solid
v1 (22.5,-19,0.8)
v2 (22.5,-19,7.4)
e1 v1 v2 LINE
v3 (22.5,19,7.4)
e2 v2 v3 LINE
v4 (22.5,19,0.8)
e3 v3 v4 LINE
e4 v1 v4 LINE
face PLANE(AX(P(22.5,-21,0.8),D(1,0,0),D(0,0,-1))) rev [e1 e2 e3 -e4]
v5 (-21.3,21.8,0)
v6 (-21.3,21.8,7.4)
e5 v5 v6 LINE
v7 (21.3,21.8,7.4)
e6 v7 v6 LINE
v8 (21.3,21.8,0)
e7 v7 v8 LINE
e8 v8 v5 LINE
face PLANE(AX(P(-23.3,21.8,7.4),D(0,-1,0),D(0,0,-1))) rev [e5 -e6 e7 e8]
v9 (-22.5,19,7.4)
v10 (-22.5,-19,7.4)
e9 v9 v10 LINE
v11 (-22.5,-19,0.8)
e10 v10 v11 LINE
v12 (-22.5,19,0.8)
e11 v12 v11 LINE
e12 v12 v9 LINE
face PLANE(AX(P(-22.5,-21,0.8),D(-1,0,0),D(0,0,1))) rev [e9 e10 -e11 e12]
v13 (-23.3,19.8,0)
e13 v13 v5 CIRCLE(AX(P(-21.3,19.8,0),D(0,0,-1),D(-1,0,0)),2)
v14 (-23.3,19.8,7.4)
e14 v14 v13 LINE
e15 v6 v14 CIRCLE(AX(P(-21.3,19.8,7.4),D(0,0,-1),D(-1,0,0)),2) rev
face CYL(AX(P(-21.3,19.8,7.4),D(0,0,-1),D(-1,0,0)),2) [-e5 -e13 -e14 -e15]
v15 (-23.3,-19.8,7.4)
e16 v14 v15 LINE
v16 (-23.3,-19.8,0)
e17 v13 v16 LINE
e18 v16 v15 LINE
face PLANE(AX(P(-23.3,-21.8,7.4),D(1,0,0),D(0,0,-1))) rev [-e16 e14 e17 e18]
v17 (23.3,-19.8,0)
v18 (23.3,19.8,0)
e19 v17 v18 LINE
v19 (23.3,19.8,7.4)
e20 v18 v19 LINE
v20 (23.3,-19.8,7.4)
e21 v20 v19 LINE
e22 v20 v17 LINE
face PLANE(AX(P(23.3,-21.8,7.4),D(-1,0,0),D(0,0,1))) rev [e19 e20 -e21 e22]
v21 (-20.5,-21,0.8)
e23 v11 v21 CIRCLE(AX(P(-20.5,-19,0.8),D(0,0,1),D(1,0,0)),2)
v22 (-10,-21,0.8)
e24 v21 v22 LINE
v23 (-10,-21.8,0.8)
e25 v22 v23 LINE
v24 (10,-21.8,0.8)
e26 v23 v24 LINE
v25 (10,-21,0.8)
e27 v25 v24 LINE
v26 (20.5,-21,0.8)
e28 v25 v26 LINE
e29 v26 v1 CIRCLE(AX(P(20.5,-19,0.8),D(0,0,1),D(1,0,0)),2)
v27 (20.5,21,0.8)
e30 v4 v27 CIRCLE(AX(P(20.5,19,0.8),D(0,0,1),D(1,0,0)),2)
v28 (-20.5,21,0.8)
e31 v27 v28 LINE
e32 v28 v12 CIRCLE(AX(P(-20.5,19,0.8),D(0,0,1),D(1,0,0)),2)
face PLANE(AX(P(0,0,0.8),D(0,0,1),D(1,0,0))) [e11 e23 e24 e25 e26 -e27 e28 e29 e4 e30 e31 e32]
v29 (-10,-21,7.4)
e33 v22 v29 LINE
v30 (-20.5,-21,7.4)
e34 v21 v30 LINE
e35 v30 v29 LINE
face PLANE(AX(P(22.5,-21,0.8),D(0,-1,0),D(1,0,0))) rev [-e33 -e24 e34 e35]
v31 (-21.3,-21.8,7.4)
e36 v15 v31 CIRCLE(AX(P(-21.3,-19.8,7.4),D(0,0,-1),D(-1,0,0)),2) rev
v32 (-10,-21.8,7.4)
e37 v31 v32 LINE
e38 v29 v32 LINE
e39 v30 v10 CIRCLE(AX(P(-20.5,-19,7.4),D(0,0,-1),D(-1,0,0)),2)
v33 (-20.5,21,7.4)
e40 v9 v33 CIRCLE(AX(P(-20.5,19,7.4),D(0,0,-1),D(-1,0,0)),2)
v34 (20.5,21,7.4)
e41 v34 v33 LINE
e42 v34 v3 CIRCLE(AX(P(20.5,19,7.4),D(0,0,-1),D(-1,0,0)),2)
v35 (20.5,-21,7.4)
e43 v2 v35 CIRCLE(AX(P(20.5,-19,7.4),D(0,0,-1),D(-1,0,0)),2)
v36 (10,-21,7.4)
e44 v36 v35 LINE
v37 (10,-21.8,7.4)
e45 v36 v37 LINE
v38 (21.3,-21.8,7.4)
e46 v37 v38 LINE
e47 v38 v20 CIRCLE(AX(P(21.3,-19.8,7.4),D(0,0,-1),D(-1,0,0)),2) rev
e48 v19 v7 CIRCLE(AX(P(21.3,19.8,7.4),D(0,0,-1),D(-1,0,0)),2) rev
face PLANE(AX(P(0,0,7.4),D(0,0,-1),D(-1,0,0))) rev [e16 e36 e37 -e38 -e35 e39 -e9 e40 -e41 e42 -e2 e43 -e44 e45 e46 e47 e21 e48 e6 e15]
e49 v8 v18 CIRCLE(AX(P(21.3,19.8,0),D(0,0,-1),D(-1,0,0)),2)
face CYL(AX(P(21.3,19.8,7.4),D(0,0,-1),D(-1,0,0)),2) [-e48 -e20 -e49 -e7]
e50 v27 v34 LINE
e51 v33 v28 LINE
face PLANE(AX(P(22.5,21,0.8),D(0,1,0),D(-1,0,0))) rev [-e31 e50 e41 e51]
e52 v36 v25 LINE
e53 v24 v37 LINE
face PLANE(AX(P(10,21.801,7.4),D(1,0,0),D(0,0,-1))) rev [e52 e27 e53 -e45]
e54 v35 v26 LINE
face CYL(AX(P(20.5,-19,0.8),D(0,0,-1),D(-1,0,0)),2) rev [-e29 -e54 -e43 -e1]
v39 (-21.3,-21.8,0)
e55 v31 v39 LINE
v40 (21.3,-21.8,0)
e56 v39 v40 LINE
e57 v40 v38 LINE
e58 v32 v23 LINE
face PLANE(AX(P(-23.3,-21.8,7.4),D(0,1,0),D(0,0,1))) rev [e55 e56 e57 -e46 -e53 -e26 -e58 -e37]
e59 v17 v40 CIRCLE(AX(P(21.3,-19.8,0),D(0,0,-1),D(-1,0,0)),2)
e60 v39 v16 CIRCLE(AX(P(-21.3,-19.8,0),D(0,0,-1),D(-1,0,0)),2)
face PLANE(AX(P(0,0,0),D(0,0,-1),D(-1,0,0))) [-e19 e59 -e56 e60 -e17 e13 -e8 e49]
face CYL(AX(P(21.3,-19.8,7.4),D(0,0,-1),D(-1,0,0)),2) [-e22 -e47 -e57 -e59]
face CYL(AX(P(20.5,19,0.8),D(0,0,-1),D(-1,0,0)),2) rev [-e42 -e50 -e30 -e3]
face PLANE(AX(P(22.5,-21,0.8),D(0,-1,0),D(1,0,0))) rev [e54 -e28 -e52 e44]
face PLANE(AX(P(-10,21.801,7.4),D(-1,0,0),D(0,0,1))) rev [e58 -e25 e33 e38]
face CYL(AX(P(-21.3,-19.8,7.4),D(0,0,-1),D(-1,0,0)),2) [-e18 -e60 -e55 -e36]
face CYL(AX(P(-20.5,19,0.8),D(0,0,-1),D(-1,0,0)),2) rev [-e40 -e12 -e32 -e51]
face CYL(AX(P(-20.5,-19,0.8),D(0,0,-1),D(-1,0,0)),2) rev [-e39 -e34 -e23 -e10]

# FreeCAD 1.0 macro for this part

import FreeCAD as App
import Part
import Sketcher

V = App.Vector
Q = App.Units.Quantity


def edges_at(feature, points):
    """Names of the edges that pass closest to the given points."""
    edges = feature.Shape.Edges
    near = lambda p: min(range(len(edges)), key=lambda i: edges[i].distToShape(Part.Vertex(*p))[0])
    return sorted({f"Edge{near(p) + 1}" for p in points})

doc = App.newDocument("Part")
body = doc.addObject("PartDesign::Body", "Body")

# Sketch on XY plane
sketch1 = body.newObject("Sketcher::SketchObject", "Sketch")
sketch1.AttachmentSupport = (doc.getObject("XY_Plane"), [""])
sketch1.MapMode = "FlatFace"
sketch1.addGeometry(Part.LineSegment(V(-23.3, 21.8, 0), V(-23.3, -21.8, 0)), False)
sketch1.addGeometry(Part.LineSegment(V(-23.3, -21.8, 0), V(23.3, -21.8, 0)), False)
sketch1.addGeometry(Part.LineSegment(V(23.3, -21.8, 0), V(23.3, 21.8, 0)), False)
sketch1.addGeometry(Part.LineSegment(V(23.3, 21.8, 0), V(-23.3, 21.8, 0)), False)
sketch1.addConstraint(Sketcher.Constraint("Coincident", 0, 2, 1, 1))
sketch1.addConstraint(Sketcher.Constraint("Coincident", 1, 2, 2, 1))
sketch1.addConstraint(Sketcher.Constraint("Coincident", 2, 2, 3, 1))
sketch1.addConstraint(Sketcher.Constraint("Coincident", 3, 2, 0, 1))
sketch1.addConstraint(Sketcher.Constraint("Vertical", 0))
sketch1.addConstraint(Sketcher.Constraint("Horizontal", 1))
sketch1.addConstraint(Sketcher.Constraint("Vertical", 2))
sketch1.addConstraint(Sketcher.Constraint("Horizontal", 3))
sketch1.addConstraint(Sketcher.Constraint("Symmetric", 0, 2, 2, 2, -1, 1))
sketch1.addConstraint(Sketcher.Constraint("DistanceX", 1, 1, 1, 2, Q("46.6 mm")))
sketch1.addConstraint(Sketcher.Constraint("DistanceY", 0, 2, 0, 1, Q("43.6 mm")))
pad1 = body.newObject("PartDesign::Pad", "Pad")
pad1.Profile = sketch1
pad1.Length = 7.4

# Sketch on XY plane
sketch2 = body.newObject("Sketcher::SketchObject", "Sketch001")
sketch2.AttachmentSupport = (doc.getObject("XY_Plane"), [""])
sketch2.MapMode = "FlatFace"
sketch2.AttachmentOffset = App.Placement(V(0, 0, 7.4), App.Rotation())
sketch2.addGeometry(Part.LineSegment(V(-22.5, 21, 0), V(-22.5, -21, 0)), False)
sketch2.addGeometry(Part.LineSegment(V(-22.5, -21, 0), V(22.5, -21, 0)), False)
sketch2.addGeometry(Part.LineSegment(V(22.5, -21, 0), V(22.5, 21, 0)), False)
sketch2.addGeometry(Part.LineSegment(V(22.5, 21, 0), V(-22.5, 21, 0)), False)
sketch2.addConstraint(Sketcher.Constraint("Coincident", 0, 2, 1, 1))
sketch2.addConstraint(Sketcher.Constraint("Coincident", 1, 2, 2, 1))
sketch2.addConstraint(Sketcher.Constraint("Coincident", 2, 2, 3, 1))
sketch2.addConstraint(Sketcher.Constraint("Coincident", 3, 2, 0, 1))
sketch2.addConstraint(Sketcher.Constraint("Vertical", 0))
sketch2.addConstraint(Sketcher.Constraint("Horizontal", 1))
sketch2.addConstraint(Sketcher.Constraint("Vertical", 2))
sketch2.addConstraint(Sketcher.Constraint("Horizontal", 3))
sketch2.addConstraint(Sketcher.Constraint("Symmetric", 0, 2, 2, 2, -1, 1))
sketch2.addConstraint(Sketcher.Constraint("DistanceX", 1, 1, 1, 2, Q("45 mm")))
sketch2.addConstraint(Sketcher.Constraint("DistanceY", 0, 2, 0, 1, Q("42 mm")))
pocket1 = body.newObject("PartDesign::Pocket", "Pocket")
pocket1.Profile = sketch2
pocket1.Length = 6.6

# Sketch on XZ plane
sketch3 = body.newObject("Sketcher::SketchObject", "Sketch002")
sketch3.AttachmentSupport = (doc.getObject("XZ_Plane"), [""])
sketch3.MapMode = "FlatFace"
sketch3.AttachmentOffset = App.Placement(V(0, 0, 21.8), App.Rotation())
sketch3.addGeometry(Part.LineSegment(V(10, 0.8, 0), V(10, 7.4, 0)), False)
sketch3.addGeometry(Part.LineSegment(V(10, 7.4, 0), V(-10, 7.4, 0)), False)
sketch3.addGeometry(Part.LineSegment(V(-10, 7.4, 0), V(-10, 0.8, 0)), False)
sketch3.addGeometry(Part.LineSegment(V(-10, 0.8, 0), V(10, 0.8, 0)), False)
sketch3.addConstraint(Sketcher.Constraint("Coincident", 0, 2, 1, 1))
sketch3.addConstraint(Sketcher.Constraint("Coincident", 1, 2, 2, 1))
sketch3.addConstraint(Sketcher.Constraint("Coincident", 2, 2, 3, 1))
sketch3.addConstraint(Sketcher.Constraint("Coincident", 3, 2, 0, 1))
sketch3.addConstraint(Sketcher.Constraint("Vertical", 0))
sketch3.addConstraint(Sketcher.Constraint("Horizontal", 1))
sketch3.addConstraint(Sketcher.Constraint("Vertical", 2))
sketch3.addConstraint(Sketcher.Constraint("Horizontal", 3))
sketch3.addConstraint(Sketcher.Constraint("DistanceX", 1, 2, 1, 1, Q("20 mm")))
sketch3.addConstraint(Sketcher.Constraint("DistanceY", 0, 1, 0, 2, Q("6.6 mm")))
sketch3.addConstraint(Sketcher.Constraint("DistanceX", -1, 1, 0, 2, Q("10 mm")))
sketch3.addConstraint(Sketcher.Constraint("DistanceY", -1, 1, 0, 2, Q("7.4 mm")))
pocket2 = body.newObject("PartDesign::Pocket", "Pocket001")
pocket2.Profile = sketch3
pocket2.Type = "UpToFirst"
doc.recompute()

fillet = body.newObject("PartDesign::Fillet", "Fillet")
fillet.Base = (pocket2, edges_at(pocket2, [
    (-22.5, -21, 4.1),
    (-22.5, 21, 4.1),
    (22.5, 21, 4.1),
    (22.5, -21, 4.1),
    (23.3, -21.8, 3.7),
    (-23.3, -21.8, 3.7),
    (-23.3, 21.8, 3.7),
    (23.3, 21.8, 3.7),
]))
fillet.Radius = 2

doc.recompute()
